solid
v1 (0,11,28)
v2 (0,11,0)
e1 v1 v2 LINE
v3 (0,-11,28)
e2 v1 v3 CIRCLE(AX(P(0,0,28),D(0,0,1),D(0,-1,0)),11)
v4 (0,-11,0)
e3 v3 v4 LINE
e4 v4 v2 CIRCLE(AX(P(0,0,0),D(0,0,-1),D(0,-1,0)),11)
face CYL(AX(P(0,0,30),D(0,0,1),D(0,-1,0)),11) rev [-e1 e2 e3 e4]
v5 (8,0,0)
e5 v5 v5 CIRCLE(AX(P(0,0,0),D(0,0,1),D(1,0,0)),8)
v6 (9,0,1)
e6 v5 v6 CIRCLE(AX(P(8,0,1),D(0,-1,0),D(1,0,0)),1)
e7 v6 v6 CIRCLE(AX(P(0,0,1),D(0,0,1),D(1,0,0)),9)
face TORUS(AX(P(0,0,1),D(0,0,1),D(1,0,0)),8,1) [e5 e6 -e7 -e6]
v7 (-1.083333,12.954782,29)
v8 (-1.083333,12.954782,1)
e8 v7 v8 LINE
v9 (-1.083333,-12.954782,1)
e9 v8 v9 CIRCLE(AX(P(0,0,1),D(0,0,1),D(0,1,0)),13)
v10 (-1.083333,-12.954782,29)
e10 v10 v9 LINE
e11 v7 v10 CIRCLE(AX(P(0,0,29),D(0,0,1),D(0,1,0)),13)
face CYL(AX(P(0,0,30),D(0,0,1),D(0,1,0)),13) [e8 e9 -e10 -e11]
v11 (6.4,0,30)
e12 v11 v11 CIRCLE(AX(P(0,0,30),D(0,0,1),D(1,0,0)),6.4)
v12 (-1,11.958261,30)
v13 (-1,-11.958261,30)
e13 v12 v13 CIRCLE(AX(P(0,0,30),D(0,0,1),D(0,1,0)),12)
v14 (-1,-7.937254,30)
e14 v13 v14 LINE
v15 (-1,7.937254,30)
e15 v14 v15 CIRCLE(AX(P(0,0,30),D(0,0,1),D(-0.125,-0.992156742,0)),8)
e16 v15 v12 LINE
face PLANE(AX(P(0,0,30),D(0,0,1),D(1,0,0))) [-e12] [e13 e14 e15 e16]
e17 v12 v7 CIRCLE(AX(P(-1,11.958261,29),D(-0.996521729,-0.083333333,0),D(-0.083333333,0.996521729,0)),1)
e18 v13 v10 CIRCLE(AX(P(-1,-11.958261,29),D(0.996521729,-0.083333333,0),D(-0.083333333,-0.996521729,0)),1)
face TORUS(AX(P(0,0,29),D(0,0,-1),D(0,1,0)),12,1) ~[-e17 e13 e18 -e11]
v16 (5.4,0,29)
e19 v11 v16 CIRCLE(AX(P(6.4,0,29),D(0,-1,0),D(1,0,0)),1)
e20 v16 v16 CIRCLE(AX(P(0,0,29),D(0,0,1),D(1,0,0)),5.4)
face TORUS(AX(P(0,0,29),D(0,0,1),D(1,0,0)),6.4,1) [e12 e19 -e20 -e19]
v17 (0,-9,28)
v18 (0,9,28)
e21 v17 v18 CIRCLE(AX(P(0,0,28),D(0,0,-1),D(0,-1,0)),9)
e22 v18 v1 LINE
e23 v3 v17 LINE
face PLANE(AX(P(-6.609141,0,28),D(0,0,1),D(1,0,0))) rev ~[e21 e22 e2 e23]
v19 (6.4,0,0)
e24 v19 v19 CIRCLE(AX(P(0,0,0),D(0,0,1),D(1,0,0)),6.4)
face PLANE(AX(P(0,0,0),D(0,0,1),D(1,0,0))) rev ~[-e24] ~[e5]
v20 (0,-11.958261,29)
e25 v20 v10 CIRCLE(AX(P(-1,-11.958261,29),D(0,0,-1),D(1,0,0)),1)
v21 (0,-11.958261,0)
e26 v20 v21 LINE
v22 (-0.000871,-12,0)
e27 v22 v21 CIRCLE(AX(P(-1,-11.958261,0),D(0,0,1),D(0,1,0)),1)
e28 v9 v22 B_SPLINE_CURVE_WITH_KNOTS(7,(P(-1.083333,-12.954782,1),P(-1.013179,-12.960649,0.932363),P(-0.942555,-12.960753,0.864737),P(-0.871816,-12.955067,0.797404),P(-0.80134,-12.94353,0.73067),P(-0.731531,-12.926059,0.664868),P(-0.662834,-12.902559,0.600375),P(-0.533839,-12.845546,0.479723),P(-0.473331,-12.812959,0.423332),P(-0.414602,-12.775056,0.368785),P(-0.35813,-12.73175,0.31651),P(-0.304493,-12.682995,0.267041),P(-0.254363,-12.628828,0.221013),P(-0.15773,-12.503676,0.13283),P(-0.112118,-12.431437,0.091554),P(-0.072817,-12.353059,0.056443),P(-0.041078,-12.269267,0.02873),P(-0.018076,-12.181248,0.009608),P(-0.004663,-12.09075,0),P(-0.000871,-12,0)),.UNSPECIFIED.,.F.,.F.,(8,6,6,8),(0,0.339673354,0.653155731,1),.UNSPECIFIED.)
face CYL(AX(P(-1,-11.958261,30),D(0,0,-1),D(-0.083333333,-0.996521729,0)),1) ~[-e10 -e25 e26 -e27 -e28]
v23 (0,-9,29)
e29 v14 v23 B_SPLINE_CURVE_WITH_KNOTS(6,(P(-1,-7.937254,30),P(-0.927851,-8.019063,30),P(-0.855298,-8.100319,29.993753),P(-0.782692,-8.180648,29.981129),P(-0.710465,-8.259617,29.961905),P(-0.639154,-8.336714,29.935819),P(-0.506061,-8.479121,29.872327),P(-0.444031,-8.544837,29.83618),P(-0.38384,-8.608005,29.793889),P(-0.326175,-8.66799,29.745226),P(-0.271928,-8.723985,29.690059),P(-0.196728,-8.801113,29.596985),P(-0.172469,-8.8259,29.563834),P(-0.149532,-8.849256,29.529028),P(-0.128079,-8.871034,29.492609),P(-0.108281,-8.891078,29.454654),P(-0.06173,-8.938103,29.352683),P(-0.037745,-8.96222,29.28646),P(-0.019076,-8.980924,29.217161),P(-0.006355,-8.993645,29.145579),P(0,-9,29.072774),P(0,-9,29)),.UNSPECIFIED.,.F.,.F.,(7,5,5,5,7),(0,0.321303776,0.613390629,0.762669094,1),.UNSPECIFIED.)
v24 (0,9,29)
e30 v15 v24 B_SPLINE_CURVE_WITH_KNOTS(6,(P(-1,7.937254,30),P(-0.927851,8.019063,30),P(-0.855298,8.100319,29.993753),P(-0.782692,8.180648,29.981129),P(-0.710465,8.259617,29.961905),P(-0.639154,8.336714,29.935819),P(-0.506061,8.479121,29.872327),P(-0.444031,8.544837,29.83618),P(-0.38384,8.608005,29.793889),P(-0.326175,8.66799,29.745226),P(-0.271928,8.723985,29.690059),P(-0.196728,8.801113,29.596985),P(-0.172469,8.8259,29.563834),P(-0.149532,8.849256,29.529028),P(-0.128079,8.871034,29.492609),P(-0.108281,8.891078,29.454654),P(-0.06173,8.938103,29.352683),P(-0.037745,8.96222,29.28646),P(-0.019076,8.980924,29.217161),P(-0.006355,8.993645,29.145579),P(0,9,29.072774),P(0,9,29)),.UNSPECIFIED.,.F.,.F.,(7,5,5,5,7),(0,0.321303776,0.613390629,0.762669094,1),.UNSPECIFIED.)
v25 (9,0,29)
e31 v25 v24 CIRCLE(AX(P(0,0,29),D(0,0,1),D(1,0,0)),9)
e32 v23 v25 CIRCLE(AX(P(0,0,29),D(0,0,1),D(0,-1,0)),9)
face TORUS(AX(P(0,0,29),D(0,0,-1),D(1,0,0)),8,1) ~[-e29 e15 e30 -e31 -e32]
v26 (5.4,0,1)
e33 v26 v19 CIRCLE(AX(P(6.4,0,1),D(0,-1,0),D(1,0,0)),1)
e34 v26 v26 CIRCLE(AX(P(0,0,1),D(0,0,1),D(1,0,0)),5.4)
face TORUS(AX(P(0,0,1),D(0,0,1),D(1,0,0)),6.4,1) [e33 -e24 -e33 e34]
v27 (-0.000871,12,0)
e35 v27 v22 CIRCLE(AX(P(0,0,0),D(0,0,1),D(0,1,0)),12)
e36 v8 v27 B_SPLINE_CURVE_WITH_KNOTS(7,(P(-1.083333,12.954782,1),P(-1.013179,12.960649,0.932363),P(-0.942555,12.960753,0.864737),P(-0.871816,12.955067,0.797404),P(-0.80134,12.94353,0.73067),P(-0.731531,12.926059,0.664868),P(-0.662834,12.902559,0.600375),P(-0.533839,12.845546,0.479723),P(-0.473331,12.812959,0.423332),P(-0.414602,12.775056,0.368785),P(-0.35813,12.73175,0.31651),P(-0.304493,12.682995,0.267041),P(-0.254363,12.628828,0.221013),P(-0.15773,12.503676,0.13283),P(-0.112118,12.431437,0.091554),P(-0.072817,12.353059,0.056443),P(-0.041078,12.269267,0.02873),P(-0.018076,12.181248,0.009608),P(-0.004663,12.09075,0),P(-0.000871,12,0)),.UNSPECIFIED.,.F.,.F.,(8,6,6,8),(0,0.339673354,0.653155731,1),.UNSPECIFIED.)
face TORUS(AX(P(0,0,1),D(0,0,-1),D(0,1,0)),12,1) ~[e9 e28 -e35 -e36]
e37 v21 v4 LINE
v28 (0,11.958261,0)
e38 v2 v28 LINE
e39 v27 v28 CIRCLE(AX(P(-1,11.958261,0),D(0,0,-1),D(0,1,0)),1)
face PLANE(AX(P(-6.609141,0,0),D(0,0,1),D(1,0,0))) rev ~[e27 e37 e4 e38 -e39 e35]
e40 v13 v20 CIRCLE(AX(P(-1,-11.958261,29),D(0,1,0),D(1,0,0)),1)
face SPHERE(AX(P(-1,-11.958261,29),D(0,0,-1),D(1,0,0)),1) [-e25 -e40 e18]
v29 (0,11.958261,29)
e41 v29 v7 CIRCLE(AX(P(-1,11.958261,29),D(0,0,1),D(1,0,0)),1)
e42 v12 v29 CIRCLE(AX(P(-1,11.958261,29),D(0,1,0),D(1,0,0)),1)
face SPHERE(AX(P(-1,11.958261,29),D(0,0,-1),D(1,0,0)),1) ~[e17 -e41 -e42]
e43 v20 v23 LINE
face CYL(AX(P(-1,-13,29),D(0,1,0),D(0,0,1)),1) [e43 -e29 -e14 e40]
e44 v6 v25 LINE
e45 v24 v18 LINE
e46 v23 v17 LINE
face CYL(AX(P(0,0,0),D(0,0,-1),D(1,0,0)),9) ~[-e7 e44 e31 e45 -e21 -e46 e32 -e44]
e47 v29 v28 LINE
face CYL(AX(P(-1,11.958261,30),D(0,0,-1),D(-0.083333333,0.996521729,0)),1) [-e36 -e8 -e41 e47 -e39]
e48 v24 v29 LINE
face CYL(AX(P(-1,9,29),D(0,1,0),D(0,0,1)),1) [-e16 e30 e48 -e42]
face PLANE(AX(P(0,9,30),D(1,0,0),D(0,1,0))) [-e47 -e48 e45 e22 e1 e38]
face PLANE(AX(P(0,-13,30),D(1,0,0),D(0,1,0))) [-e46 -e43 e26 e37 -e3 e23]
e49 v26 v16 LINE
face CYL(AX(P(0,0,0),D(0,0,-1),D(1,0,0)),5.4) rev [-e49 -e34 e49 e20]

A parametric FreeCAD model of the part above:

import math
import FreeCAD as App
import Part
import Sketcher
Q = App.Units.Quantity


def edges_at(feature, points):
    """Names of the edges that pass closest to the given points."""
    edges = feature.Shape.Edges
    near = lambda p: min(range(len(edges)), key=lambda i: edges[i].distToShape(Part.Vertex(*p))[0])
    return sorted({f"Edge{near(p) + 1}" for p in points})

doc = App.newDocument("Part")
body = doc.addObject("PartDesign::Body", "Body")

# Sketch on XY plane
sketch1 = body.newObject("Sketcher::SketchObject", "Sketch")
sketch1.AttachmentSupport = (doc.getObject("XY_Plane"), [""])
sketch1.MapMode = "FlatFace"
sketch1.addGeometry(Part.Circle(App.Vector(0, 0, 0), App.Vector(0, 0, 1), 9), False)
sketch1.addGeometry(Part.Circle(App.Vector(0, 0, 0), App.Vector(0, 0, 1), 5), False)
sketch1.addConstraint(Sketcher.Constraint("Coincident", 0, 3, -1, 1))
sketch1.addConstraint(Sketcher.Constraint("Coincident", 1, 3, -1, 1))
sketch1.addConstraint(Sketcher.Constraint("Diameter", 0, Q("18 mm")))
sketch1.addConstraint(Sketcher.Constraint("Diameter", 1, Q("10.8 mm")))
pad1 = body.newObject("PartDesign::Pad", "Pad")
pad1.Profile = sketch1
pad1.Length = 30

# Sketch on XY plane
sketch2 = body.newObject("Sketcher::SketchObject", "Sketch001")
sketch2.AttachmentSupport = (doc.getObject("XY_Plane"), [""])
sketch2.MapMode = "FlatFace"
sketch2.AttachmentOffset = App.Placement(App.Vector(0, 0, 30), App.Rotation())
sketch2.addGeometry(Part.ArcOfCircle(Part.Circle(App.Vector(0, 0, 0), App.Vector(0, 0, 1), 13), math.radians(90), math.radians(270)), False)
sketch2.addGeometry(Part.LineSegment(App.Vector(0, -13, 0), App.Vector(0, -9, 0)), False)
sketch2.addGeometry(Part.ArcOfCircle(Part.Circle(App.Vector(0, 0, 0), App.Vector(0, 0, 1), 9), math.radians(90), math.radians(270)), False)
sketch2.addGeometry(Part.LineSegment(App.Vector(0, 9, 0), App.Vector(0, 13, 0)), False)
sketch2.addConstraint(Sketcher.Constraint("Coincident", 0, 2, 1, 1))
sketch2.addConstraint(Sketcher.Constraint("Coincident", 1, 2, 2, 2))
sketch2.addConstraint(Sketcher.Constraint("Coincident", 2, 1, 3, 1))
sketch2.addConstraint(Sketcher.Constraint("Coincident", 3, 2, 0, 1))
sketch2.addConstraint(Sketcher.Constraint("Vertical", 1))
sketch2.addConstraint(Sketcher.Constraint("Vertical", 3))
sketch2.addConstraint(Sketcher.Constraint("Coincident", 0, 3, -1, 1))
sketch2.addConstraint(Sketcher.Constraint("Coincident", 2, 3, -1, 1))
sketch2.addConstraint(Sketcher.Constraint("PointOnObject", 0, 2, -2))
sketch2.addConstraint(Sketcher.Constraint("PointOnObject", 2, 1, -2))
sketch2.addConstraint(Sketcher.Constraint("Radius", 0, Q("13 mm")))
sketch2.addConstraint(Sketcher.Constraint("Radius", 2, Q("9 mm")))
pad2 = body.newObject("PartDesign::Pad", "Pad001")
pad2.Profile = sketch2
pad2.Length = 2
pad2.Reversed = True

# Sketch on XY plane
sketch3 = body.newObject("Sketcher::SketchObject", "Sketch002")
sketch3.AttachmentSupport = (doc.getObject("XY_Plane"), [""])
sketch3.MapMode = "FlatFace"
sketch3.AttachmentOffset = App.Placement(App.Vector(0, 0, 30), App.Rotation())
sketch3.addGeometry(Part.LineSegment(App.Vector(0, 11, 0), App.Vector(0, 13, 0)), False)
sketch3.addGeometry(Part.ArcOfCircle(Part.Circle(App.Vector(0, 0, 0), App.Vector(0, 0, 1), 13), math.radians(90), math.radians(270)), False)
sketch3.addGeometry(Part.LineSegment(App.Vector(0, -13, 0), App.Vector(0, -11, 0)), False)
sketch3.addGeometry(Part.ArcOfCircle(Part.Circle(App.Vector(0, 0, 0), App.Vector(0, 0, 1), 11), math.radians(90), math.radians(270)), False)
sketch3.addConstraint(Sketcher.Constraint("Coincident", 0, 2, 1, 1))
sketch3.addConstraint(Sketcher.Constraint("Coincident", 1, 2, 2, 1))
sketch3.addConstraint(Sketcher.Constraint("Coincident", 2, 2, 3, 2))
sketch3.addConstraint(Sketcher.Constraint("Coincident", 3, 1, 0, 1))
sketch3.addConstraint(Sketcher.Constraint("Vertical", 0))
sketch3.addConstraint(Sketcher.Constraint("Vertical", 2))
sketch3.addConstraint(Sketcher.Constraint("Coincident", 1, 3, -1, 1))
sketch3.addConstraint(Sketcher.Constraint("Coincident", 3, 3, -1, 1))
sketch3.addConstraint(Sketcher.Constraint("PointOnObject", 0, 2, -2))
sketch3.addConstraint(Sketcher.Constraint("PointOnObject", 1, 2, -2))
sketch3.addConstraint(Sketcher.Constraint("Radius", 1, Q("13 mm")))
sketch3.addConstraint(Sketcher.Constraint("Radius", 3, Q("11 mm")))
pad3 = body.newObject("PartDesign::Pad", "Pad002")
pad3.Profile = sketch3
pad3.Length = 30
pad3.Reversed = True
doc.recompute()

fillet = body.newObject("PartDesign::Fillet", "Fillet")
fillet.Base = (pad3, edges_at(pad3, [
    (-9, 0, 0),
    (-13, 0, 0),
    (-13, 0, 30),
    (0, 13, 15),
    (0, -13, 15),
    (0, -11, 30),
    (0, 11, 30),
    (6.364, -6.364, 30),
    (6.364, 6.364, 30),
    (-5.4, 0, 30),
    (-5.4, 0, 0),
]))
fillet.Radius = 1

doc.recompute()
